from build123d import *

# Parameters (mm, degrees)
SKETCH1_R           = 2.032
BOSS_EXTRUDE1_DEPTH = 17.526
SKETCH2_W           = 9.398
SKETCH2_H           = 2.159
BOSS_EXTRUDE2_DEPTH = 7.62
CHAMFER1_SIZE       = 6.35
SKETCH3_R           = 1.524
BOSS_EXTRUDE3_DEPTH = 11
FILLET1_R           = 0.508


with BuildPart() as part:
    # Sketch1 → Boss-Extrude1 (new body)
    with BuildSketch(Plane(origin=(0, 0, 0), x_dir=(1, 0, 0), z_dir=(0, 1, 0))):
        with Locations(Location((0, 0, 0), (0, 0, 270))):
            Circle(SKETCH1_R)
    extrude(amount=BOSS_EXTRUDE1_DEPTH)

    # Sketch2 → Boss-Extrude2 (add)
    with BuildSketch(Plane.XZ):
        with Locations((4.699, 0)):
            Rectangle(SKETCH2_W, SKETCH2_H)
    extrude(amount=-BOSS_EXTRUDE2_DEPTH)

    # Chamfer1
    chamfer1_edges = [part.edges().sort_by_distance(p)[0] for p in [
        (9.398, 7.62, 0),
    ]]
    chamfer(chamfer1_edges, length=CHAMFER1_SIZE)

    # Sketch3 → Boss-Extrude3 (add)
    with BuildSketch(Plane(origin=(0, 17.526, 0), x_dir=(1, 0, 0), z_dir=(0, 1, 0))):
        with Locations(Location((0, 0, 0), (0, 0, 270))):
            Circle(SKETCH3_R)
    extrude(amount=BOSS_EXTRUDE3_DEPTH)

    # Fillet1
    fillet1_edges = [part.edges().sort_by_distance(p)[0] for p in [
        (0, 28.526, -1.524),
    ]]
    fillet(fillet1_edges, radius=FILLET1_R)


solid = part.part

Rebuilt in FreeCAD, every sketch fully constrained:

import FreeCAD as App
import Part
import Sketcher
from FreeCAD import Vector
Q = App.Units.Quantity


def edges_at(feature, points):
    """Names of the edges that pass closest to the given points."""
    edges = feature.Shape.Edges
    near = lambda p: min(range(len(edges)), key=lambda i: edges[i].distToShape(Part.Vertex(*p))[0])
    return sorted({f"Edge{near(p) + 1}" for p in points})

doc = App.newDocument("Part")
body = doc.addObject("PartDesign::Body", "Body")

# Sketch on XZ plane
sketch1 = doc.addObject("Sketcher::SketchObject", "Sketch")
body.addObject(sketch1)
sketch1.AttachmentSupport = (doc.XZ_Plane, [""])
sketch1.MapMode = "FlatFace"
sketch1.addGeometry(Part.Circle(Vector(0, 0, 0), Vector(0, 0, 1), 2), False)
sketch1.addConstraint([
    Sketcher.Constraint("Coincident", 0, 3, -1, 1),
    Sketcher.Constraint("Diameter", 0, Q("0.16 in")),
])
pad1 = doc.addObject("PartDesign::Pad", "Pad")
body.addObject(pad1)
pad1.Profile = sketch1
pad1.Length = Q("0.69 in")
pad1.Reversed = True

# Sketch on XZ plane
sketch2 = doc.addObject("Sketcher::SketchObject", "Sketch001")
body.addObject(sketch2)
sketch2.AttachmentSupport = (doc.XZ_Plane, [""])
sketch2.MapMode = "FlatFace"
sketch2.addGeometry([
    Part.LineSegment(Vector(0, 1.1, 0), Vector(0, -1.1, 0)),
    Part.LineSegment(Vector(0, -1.1, 0), Vector(9.4, -1.1, 0)),
    Part.LineSegment(Vector(9.4, -1.1, 0), Vector(9.4, 1.1, 0)),
    Part.LineSegment(Vector(9.4, 1.1, 0), Vector(0, 1.1, 0)),
], False)
sketch2.addConstraint([
    Sketcher.Constraint("Coincident", 0, 2, 1, 1),
    Sketcher.Constraint("Coincident", 1, 2, 2, 1),
    Sketcher.Constraint("Coincident", 2, 2, 3, 1),
    Sketcher.Constraint("Coincident", 3, 2, 0, 1),
    Sketcher.Constraint("Vertical", 0),
    Sketcher.Constraint("Horizontal", 1),
    Sketcher.Constraint("Vertical", 2),
    Sketcher.Constraint("Horizontal", 3),
    Sketcher.Constraint("Symmetric", 0, 2, 3, 2, -1, 1),
    Sketcher.Constraint("DistanceX", 1, 1, 1, 2, Q("0.37 in")),
    Sketcher.Constraint("DistanceY", 0, 2, 0, 1, Q("0.085 in")),
])
pad2 = doc.addObject("PartDesign::Pad", "Pad001")
body.addObject(pad2)
pad2.Profile = sketch2
pad2.Length = Q("0.3 in")
pad2.Reversed = True
doc.recompute()

chamfer = doc.addObject("PartDesign::Chamfer", "Chamfer")
body.addObject(chamfer)
chamfer.Base = (pad2, edges_at(pad2, [(9.398, 7.62, 0)]))
chamfer.Size = Q("0.25 in")

# Sketch on XZ plane
sketch3 = doc.addObject("Sketcher::SketchObject", "Sketch002")
body.addObject(sketch3)
sketch3.AttachmentSupport = (doc.XZ_Plane, [""])
sketch3.MapMode = "FlatFace"
sketch3.AttachmentOffset = App.Placement(Vector(0, 0, -0.69 * 25.4), App.Rotation())
sketch3.addGeometry(Part.Circle(Vector(0, 0, 0), Vector(0, 0, 1), 1.5), False)
sketch3.addConstraint([
    Sketcher.Constraint("Coincident", 0, 3, -1, 1),
    Sketcher.Constraint("Diameter", 0, Q("0.12 in")),
])
pad3 = doc.addObject("PartDesign::Pad", "Pad002")
body.addObject(pad3)
pad3.Profile = sketch3
pad3.Length = 11
pad3.Reversed = True
doc.recompute()

fillet = doc.addObject("PartDesign::Fillet", "Fillet")
body.addObject(fillet)
fillet.Base = (pad3, edges_at(pad3, [(0, 28.526, -1.524)]))
fillet.Radius = Q("0.02 in")

doc.recompute()
